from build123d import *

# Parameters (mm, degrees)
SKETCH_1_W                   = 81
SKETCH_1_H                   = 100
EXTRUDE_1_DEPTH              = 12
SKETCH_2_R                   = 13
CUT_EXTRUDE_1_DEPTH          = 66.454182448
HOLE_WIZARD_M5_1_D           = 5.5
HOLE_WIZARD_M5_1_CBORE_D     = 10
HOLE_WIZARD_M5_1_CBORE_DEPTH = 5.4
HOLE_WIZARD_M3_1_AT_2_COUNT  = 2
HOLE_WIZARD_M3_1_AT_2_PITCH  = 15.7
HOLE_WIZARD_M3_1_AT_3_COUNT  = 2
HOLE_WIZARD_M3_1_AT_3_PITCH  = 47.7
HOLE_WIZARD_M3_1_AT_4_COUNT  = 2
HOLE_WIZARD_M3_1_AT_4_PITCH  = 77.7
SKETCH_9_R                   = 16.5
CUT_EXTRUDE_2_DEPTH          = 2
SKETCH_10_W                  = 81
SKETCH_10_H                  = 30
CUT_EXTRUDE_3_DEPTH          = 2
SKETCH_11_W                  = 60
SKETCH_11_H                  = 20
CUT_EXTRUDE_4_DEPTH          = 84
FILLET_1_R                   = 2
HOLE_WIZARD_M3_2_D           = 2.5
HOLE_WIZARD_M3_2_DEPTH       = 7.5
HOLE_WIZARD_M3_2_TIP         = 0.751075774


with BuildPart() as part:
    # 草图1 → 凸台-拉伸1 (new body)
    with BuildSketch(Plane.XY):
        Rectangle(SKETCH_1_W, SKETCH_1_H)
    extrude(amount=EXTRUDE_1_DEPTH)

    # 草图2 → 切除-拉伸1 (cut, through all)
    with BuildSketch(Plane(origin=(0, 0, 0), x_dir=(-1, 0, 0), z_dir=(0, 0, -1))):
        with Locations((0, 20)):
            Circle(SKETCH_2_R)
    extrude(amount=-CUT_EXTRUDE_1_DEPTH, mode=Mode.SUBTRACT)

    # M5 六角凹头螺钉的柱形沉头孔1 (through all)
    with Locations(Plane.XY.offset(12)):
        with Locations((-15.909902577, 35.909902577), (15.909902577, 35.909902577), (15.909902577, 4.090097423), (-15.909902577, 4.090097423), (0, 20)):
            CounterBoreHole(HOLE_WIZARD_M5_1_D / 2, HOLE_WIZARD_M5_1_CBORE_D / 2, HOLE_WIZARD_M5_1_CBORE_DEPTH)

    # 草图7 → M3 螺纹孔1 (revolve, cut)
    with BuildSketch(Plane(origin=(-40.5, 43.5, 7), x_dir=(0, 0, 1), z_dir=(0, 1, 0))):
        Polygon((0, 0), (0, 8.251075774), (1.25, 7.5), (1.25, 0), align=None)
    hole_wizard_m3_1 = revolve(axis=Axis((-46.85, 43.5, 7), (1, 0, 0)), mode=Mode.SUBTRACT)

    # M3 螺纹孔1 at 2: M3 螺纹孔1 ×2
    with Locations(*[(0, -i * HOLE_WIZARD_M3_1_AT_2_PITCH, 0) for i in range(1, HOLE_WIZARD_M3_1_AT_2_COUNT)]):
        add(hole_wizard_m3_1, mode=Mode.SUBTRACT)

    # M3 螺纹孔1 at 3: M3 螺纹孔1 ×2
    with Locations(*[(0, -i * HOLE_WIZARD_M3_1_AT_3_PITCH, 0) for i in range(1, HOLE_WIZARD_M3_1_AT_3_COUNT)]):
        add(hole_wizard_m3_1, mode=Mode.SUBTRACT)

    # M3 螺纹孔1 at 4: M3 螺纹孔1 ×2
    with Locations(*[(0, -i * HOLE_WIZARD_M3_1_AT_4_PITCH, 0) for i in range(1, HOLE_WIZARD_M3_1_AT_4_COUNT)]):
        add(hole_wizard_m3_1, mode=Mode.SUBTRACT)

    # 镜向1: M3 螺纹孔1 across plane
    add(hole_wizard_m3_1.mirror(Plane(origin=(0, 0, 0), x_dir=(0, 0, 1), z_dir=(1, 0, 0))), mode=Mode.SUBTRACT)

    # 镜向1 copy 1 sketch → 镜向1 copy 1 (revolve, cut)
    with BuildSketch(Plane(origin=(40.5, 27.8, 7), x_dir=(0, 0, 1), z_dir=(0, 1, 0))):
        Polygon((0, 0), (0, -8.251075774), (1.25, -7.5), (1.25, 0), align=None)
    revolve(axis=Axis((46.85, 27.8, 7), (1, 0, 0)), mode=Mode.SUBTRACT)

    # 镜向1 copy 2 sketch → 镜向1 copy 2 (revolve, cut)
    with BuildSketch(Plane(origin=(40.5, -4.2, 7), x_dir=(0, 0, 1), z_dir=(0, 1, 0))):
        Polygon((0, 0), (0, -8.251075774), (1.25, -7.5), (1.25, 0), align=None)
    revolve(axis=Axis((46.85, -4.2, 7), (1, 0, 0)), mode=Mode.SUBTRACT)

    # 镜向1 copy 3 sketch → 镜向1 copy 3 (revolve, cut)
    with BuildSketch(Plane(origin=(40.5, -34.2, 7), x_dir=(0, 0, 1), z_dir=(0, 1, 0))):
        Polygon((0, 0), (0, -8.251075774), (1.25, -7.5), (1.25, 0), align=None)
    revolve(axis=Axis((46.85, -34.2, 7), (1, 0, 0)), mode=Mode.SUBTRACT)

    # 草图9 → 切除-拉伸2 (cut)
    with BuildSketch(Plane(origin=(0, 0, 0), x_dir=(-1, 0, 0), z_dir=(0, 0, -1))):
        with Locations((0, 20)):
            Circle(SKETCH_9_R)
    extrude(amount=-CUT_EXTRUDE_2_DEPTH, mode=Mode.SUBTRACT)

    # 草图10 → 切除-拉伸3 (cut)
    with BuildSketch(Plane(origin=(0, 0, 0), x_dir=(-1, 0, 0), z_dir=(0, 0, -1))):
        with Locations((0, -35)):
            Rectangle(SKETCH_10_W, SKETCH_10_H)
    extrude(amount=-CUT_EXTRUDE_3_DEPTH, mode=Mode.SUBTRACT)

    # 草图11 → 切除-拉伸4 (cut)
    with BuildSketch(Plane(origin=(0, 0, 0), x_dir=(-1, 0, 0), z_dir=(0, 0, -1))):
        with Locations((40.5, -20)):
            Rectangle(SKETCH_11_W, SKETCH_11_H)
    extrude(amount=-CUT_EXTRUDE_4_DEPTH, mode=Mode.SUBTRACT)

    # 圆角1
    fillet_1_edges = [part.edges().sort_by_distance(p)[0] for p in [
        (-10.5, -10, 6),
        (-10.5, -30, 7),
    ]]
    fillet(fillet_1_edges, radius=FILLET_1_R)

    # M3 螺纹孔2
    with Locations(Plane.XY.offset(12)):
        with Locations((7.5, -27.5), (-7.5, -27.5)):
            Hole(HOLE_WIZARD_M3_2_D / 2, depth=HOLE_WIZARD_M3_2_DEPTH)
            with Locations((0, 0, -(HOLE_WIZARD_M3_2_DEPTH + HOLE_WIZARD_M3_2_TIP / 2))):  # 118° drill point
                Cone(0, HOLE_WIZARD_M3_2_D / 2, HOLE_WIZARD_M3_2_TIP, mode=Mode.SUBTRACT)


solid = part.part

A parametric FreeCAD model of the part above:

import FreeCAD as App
import Part
import Sketcher
Q = App.Units.Quantity


def edges_at(feature, points):
    """Names of the edges that pass closest to the given points."""
    edges = feature.Shape.Edges
    near = lambda p: min(range(len(edges)), key=lambda i: edges[i].distToShape(Part.Vertex(*p))[0])
    return sorted({f"Edge{near(p) + 1}" for p in points})

doc = App.newDocument("Part")
body = doc.addObject("PartDesign::Body", "Body")

sketch1 = body.newObject("Sketcher::SketchObject", "Sketch")
sketch1.AttachmentSupport = (doc.getObject("XY_Plane"), [""])
sketch1.MapMode = "FlatFace"
sketch1.addGeometry([
    Part.LineSegment(App.Vector(-40, 50, 0), App.Vector(-40, -50, 0)),
    Part.LineSegment(App.Vector(-40, -50, 0), App.Vector(40, -50, 0)),
    Part.LineSegment(App.Vector(40, -50, 0), App.Vector(40, 50, 0)),
    Part.LineSegment(App.Vector(40, 50, 0), App.Vector(-40, 50, 0)),
], False)
sketch1.addConstraint([
    Sketcher.Constraint("Coincident", 0, 2, 1, 1),
    Sketcher.Constraint("Coincident", 1, 2, 2, 1),
    Sketcher.Constraint("Coincident", 2, 2, 3, 1),
    Sketcher.Constraint("Coincident", 3, 2, 0, 1),
    Sketcher.Constraint("Vertical", 0),
    Sketcher.Constraint("Horizontal", 1),
    Sketcher.Constraint("Vertical", 2),
    Sketcher.Constraint("Horizontal", 3),
    Sketcher.Constraint("Symmetric", 0, 2, 2, 2, -1, 1),
    Sketcher.Constraint("DistanceX", 1, 1, 1, 2, 81.0),
    Sketcher.Constraint("DistanceY", 0, 2, 0, 1, 100.0),
])
pad1 = body.newObject("PartDesign::Pad", "Pad")
pad1.Profile = sketch1
pad1.Length = 12

sketch2 = body.newObject("Sketcher::SketchObject", "Sketch001")
sketch2.AttachmentSupport = (doc.getObject("XY_Plane"), [""])
sketch2.MapMode = "FlatFace"
sketch2.addGeometry(Part.Circle(App.Vector(0, 20, 0), App.Vector(0, 0, 1), 13), False)
sketch2.addConstraint([
    Sketcher.Constraint("PointOnObject", 0, 3, -2),
    Sketcher.Constraint("Diameter", 0, 26.0),
    Sketcher.Constraint("DistanceY", -1, 1, 0, 3, 20.0),
])
pocket1 = body.newObject("PartDesign::Pocket", "Pocket")
pocket1.Profile = sketch2
pocket1.Type = "ThroughAll"
pocket1.Reversed = True

sketch3 = body.newObject("Sketcher::SketchObject", "Sketch002")
sketch3.AttachmentSupport = (doc.getObject("XY_Plane"), [""])
sketch3.MapMode = "FlatFace"
sketch3.AttachmentOffset = App.Placement(App.Vector(0, 0, 12), App.Rotation())
sketch3.addGeometry([
    Part.Circle(App.Vector(-15.9, 35.9, 0), App.Vector(0, 0, 1), 2.8),
    Part.Circle(App.Vector(15.9, 35.9, 0), App.Vector(0, 0, 1), 2.8),
    Part.Circle(App.Vector(15.9, 4.1, 0), App.Vector(0, 0, 1), 2.8),
    Part.Circle(App.Vector(-15.9, 4.1, 0), App.Vector(0, 0, 1), 2.8),
    Part.Circle(App.Vector(0, 20, 0), App.Vector(0, 0, 1), 2.8),
], False)
sketch3.addConstraint([
    Sketcher.Constraint("Equal", 0, 1),
    Sketcher.Constraint("Equal", 1, 2),
    Sketcher.Constraint("Equal", 2, 3),
    Sketcher.Constraint("Equal", 3, 4),
    Sketcher.Constraint("Symmetric", 0, 3, 1, 3, -2),
    Sketcher.Constraint("Symmetric", 2, 3, 3, 3, -2),
    Sketcher.Constraint("PointOnObject", 4, 3, -2),
    Sketcher.Constraint("Vertical", 1, 3, 2, 3),
    Sketcher.Constraint("Diameter", 0, 5.5),
    Sketcher.Constraint("DistanceY", -1, 1, 4, 3, 20.0),
    Sketcher.Constraint("DistanceX", 0, 3, -1, 1, 15.909903),
    Sketcher.Constraint("DistanceY", -1, 1, 0, 3, 35.909903),
    Sketcher.Constraint("DistanceY", -1, 1, 2, 3, 4.090097),
])
doc.recompute()
hole = body.newObject("PartDesign::Hole", "Hole")
hole.Profile = sketch3
hole.ThreadType = "None"
hole.Diameter = 5.5
hole.DepthType = "ThroughAll"
hole.HoleCutType = "Counterbore"
hole.HoleCutDiameter = 10
hole.HoleCutDepth = 5.4

sketch4 = body.newObject("Sketcher::SketchObject", "Sketch003")
sketch4.AttachmentSupport = (doc.getObject("XZ_Plane"), [""])
sketch4.MapMode = "FlatFace"
sketch4.AttachmentOffset = App.Placement(App.Vector(0, 0, -43.5), App.Rotation())
sketch4.addGeometry([
    Part.LineSegment(App.Vector(-32.2, 7, 0), App.Vector(-40.5, 7, 0)),
    Part.LineSegment(App.Vector(-40.5, 7, 0), App.Vector(-40.5, 8.2, 0)),
    Part.LineSegment(App.Vector(-40.5, 8.2, 0), App.Vector(-33, 8.2, 0)),
    Part.LineSegment(App.Vector(-33, 8.2, 0), App.Vector(-32.2, 7, 0)),
], False)
sketch4.addGeometry(Part.LineSegment(App.Vector(-40.5, 7, 0), App.Vector(-32.2, 7, 0)), True)
sketch4.addConstraint([
    Sketcher.Constraint("Coincident", 0, 2, 1, 1),
    Sketcher.Constraint("Coincident", 1, 2, 2, 1),
    Sketcher.Constraint("Coincident", 2, 2, 3, 1),
    Sketcher.Constraint("Coincident", 3, 2, 0, 1),
    Sketcher.Constraint("Horizontal", 0),
    Sketcher.Constraint("Vertical", 1),
    Sketcher.Constraint("Horizontal", 2),
    Sketcher.Constraint("Horizontal", 4),
    Sketcher.Constraint("Coincident", 4, 1, 0, 2),
    Sketcher.Constraint("Equal", 0, 4),
    Sketcher.Constraint("Angle", 3, Q("-59 deg")),
    Sketcher.Constraint("DistanceX", 2, 1, 2, 2, 7.5),
    Sketcher.Constraint("DistanceY", -1, 1, 0, 2, 7.0),
    Sketcher.Constraint("DistanceX", 2, 2, -1, 1, 33.0),
    Sketcher.Constraint("DistanceY", 1, 1, 1, 2, 1.25),
])
groove = body.newObject("PartDesign::Groove", "Groove")
groove.Profile = sketch4
groove.ReferenceAxis = (sketch4, ["Axis0"])
groove.Angle = 360
doc.recompute()

linearpattern = body.newObject("PartDesign::LinearPattern", "LinearPattern")
linearpattern.Originals = [groove]
linearpattern.Direction = (doc.getObject("Y_Axis"), [""])
linearpattern.Mode = "offset"
linearpattern.Offset = 15.7
linearpattern.Occurrences = 2
linearpattern.Reversed = True
body.Tip = linearpattern
doc.recompute()

linearpattern2 = body.newObject("PartDesign::LinearPattern", "LinearPattern001")
linearpattern2.Originals = [groove]
linearpattern2.Direction = (doc.getObject("Y_Axis"), [""])
linearpattern2.Mode = "offset"
linearpattern2.Offset = 47.7
linearpattern2.Occurrences = 2
linearpattern2.Reversed = True
body.Tip = linearpattern2
doc.recompute()

linearpattern3 = body.newObject("PartDesign::LinearPattern", "LinearPattern002")
linearpattern3.Originals = [groove]
linearpattern3.Direction = (doc.getObject("Y_Axis"), [""])
linearpattern3.Mode = "offset"
linearpattern3.Offset = 77.7
linearpattern3.Occurrences = 2
linearpattern3.Reversed = True
body.Tip = linearpattern3
doc.recompute()

mirrored = body.newObject("PartDesign::Mirrored", "Mirrored")
mirrored.Originals = [groove]
mirrored.MirrorPlane = (doc.getObject("YZ_Plane"), [""])
body.Tip = mirrored

sketch5 = body.newObject("Sketcher::SketchObject", "Sketch004")
sketch5.AttachmentSupport = (doc.getObject("XZ_Plane"), [""])
sketch5.MapMode = "FlatFace"
sketch5.AttachmentOffset = App.Placement(App.Vector(0, 0, -27.8), App.Rotation())
sketch5.addGeometry([
    Part.LineSegment(App.Vector(40.5, 7, 0), App.Vector(32.2, 7, 0)),
    Part.LineSegment(App.Vector(32.2, 7, 0), App.Vector(33, 8.2, 0)),
    Part.LineSegment(App.Vector(33, 8.2, 0), App.Vector(40.5, 8.2, 0)),
    Part.LineSegment(App.Vector(40.5, 8.2, 0), App.Vector(40.5, 7, 0)),
], False)
sketch5.addGeometry(Part.LineSegment(App.Vector(32.2, 7, 0), App.Vector(40.5, 7, 0)), True)
sketch5.addConstraint([
    Sketcher.Constraint("Coincident", 0, 2, 1, 1),
    Sketcher.Constraint("Coincident", 1, 2, 2, 1),
    Sketcher.Constraint("Coincident", 2, 2, 3, 1),
    Sketcher.Constraint("Coincident", 3, 2, 0, 1),
    Sketcher.Constraint("Horizontal", 0),
    Sketcher.Constraint("Horizontal", 2),
    Sketcher.Constraint("Vertical", 3),
    Sketcher.Constraint("Horizontal", 4),
    Sketcher.Constraint("Coincident", 4, 1, 0, 2),
    Sketcher.Constraint("Vertical", 2, 2, 4, 2),
    Sketcher.Constraint("Angle", 1, Q("59 deg")),
    Sketcher.Constraint("DistanceX", 2, 1, 2, 2, 7.5),
    Sketcher.Constraint("DistanceY", -1, 1, 0, 2, 7.0),
    Sketcher.Constraint("DistanceX", -1, 1, 1, 2, 33.0),
    Sketcher.Constraint("DistanceY", 3, 2, 3, 1, 1.25),
])
groove2 = body.newObject("PartDesign::Groove", "Groove001")
groove2.Profile = sketch5
groove2.ReferenceAxis = (sketch5, ["Axis0"])
groove2.Angle = 360

sketch6 = body.newObject("Sketcher::SketchObject", "Sketch005")
sketch6.AttachmentSupport = (doc.getObject("XZ_Plane"), [""])
sketch6.MapMode = "FlatFace"
sketch6.AttachmentOffset = App.Placement(App.Vector(0, 0, 4.2), App.Rotation())
sketch6.addGeometry([
    Part.LineSegment(App.Vector(40.5, 7, 0), App.Vector(32.2, 7, 0)),
    Part.LineSegment(App.Vector(32.2, 7, 0), App.Vector(33, 8.2, 0)),
    Part.LineSegment(App.Vector(33, 8.2, 0), App.Vector(40.5, 8.2, 0)),
    Part.LineSegment(App.Vector(40.5, 8.2, 0), App.Vector(40.5, 7, 0)),
], False)
sketch6.addGeometry(Part.LineSegment(App.Vector(32.2, 7, 0), App.Vector(40.5, 7, 0)), True)
sketch6.addConstraint([
    Sketcher.Constraint("Coincident", 0, 2, 1, 1),
    Sketcher.Constraint("Coincident", 1, 2, 2, 1),
    Sketcher.Constraint("Coincident", 2, 2, 3, 1),
    Sketcher.Constraint("Coincident", 3, 2, 0, 1),
    Sketcher.Constraint("Horizontal", 0),
    Sketcher.Constraint("Horizontal", 2),
    Sketcher.Constraint("Vertical", 3),
    Sketcher.Constraint("Horizontal", 4),
    Sketcher.Constraint("Coincident", 4, 1, 0, 2),
    Sketcher.Constraint("Vertical", 2, 2, 4, 2),
    Sketcher.Constraint("Angle", 1, Q("59 deg")),
    Sketcher.Constraint("DistanceX", 2, 1, 2, 2, 7.5),
    Sketcher.Constraint("DistanceY", -1, 1, 0, 2, 7.0),
    Sketcher.Constraint("DistanceX", -1, 1, 1, 2, 33.0),
    Sketcher.Constraint("DistanceY", 3, 2, 3, 1, 1.25),
])
groove3 = body.newObject("PartDesign::Groove", "Groove002")
groove3.Profile = sketch6
groove3.ReferenceAxis = (sketch6, ["Axis0"])
groove3.Angle = 360

sketch7 = body.newObject("Sketcher::SketchObject", "Sketch006")
sketch7.AttachmentSupport = (doc.getObject("XZ_Plane"), [""])
sketch7.MapMode = "FlatFace"
sketch7.AttachmentOffset = App.Placement(App.Vector(0, 0, 34.2), App.Rotation())
sketch7.addGeometry([
    Part.LineSegment(App.Vector(40.5, 7, 0), App.Vector(32.2, 7, 0)),
    Part.LineSegment(App.Vector(32.2, 7, 0), App.Vector(33, 8.2, 0)),
    Part.LineSegment(App.Vector(33, 8.2, 0), App.Vector(40.5, 8.2, 0)),
    Part.LineSegment(App.Vector(40.5, 8.2, 0), App.Vector(40.5, 7, 0)),
], False)
sketch7.addGeometry(Part.LineSegment(App.Vector(32.2, 7, 0), App.Vector(40.5, 7, 0)), True)
sketch7.addConstraint([
    Sketcher.Constraint("Coincident", 0, 2, 1, 1),
    Sketcher.Constraint("Coincident", 1, 2, 2, 1),
    Sketcher.Constraint("Coincident", 2, 2, 3, 1),
    Sketcher.Constraint("Coincident", 3, 2, 0, 1),
    Sketcher.Constraint("Horizontal", 0),
    Sketcher.Constraint("Horizontal", 2),
    Sketcher.Constraint("Vertical", 3),
    Sketcher.Constraint("Horizontal", 4),
    Sketcher.Constraint("Coincident", 4, 1, 0, 2),
    Sketcher.Constraint("Vertical", 2, 2, 4, 2),
    Sketcher.Constraint("Angle", 1, Q("59 deg")),
    Sketcher.Constraint("DistanceX", 2, 1, 2, 2, 7.5),
    Sketcher.Constraint("DistanceY", -1, 1, 0, 2, 7.0),
    Sketcher.Constraint("DistanceX", -1, 1, 1, 2, 33.0),
    Sketcher.Constraint("DistanceY", 3, 2, 3, 1, 1.25),
])
groove4 = body.newObject("PartDesign::Groove", "Groove003")
groove4.Profile = sketch7
groove4.ReferenceAxis = (sketch7, ["Axis0"])
groove4.Angle = 360

sketch8 = body.newObject("Sketcher::SketchObject", "Sketch007")
sketch8.AttachmentSupport = (doc.getObject("XY_Plane"), [""])
sketch8.MapMode = "FlatFace"
sketch8.addGeometry(Part.Circle(App.Vector(0, 20, 0), App.Vector(0, 0, 1), 16), False)
sketch8.addConstraint([
    Sketcher.Constraint("PointOnObject", 0, 3, -2),
    Sketcher.Constraint("Diameter", 0, 33.0),
    Sketcher.Constraint("DistanceY", -1, 1, 0, 3, 20.0),
])
pocket2 = body.newObject("PartDesign::Pocket", "Pocket001")
pocket2.Profile = sketch8
pocket2.Length = 2
pocket2.Reversed = True

sketch9 = body.newObject("Sketcher::SketchObject", "Sketch008")
sketch9.AttachmentSupport = (doc.getObject("XY_Plane"), [""])
sketch9.MapMode = "FlatFace"
sketch9.addGeometry([
    Part.LineSegment(App.Vector(40, -20, 0), App.Vector(40, -50, 0)),
    Part.LineSegment(App.Vector(40, -50, 0), App.Vector(-40, -50, 0)),
    Part.LineSegment(App.Vector(-40, -50, 0), App.Vector(-40, -20, 0)),
    Part.LineSegment(App.Vector(-40, -20, 0), App.Vector(40, -20, 0)),
], False)
sketch9.addConstraint([
    Sketcher.Constraint("Coincident", 0, 2, 1, 1),
    Sketcher.Constraint("Coincident", 1, 2, 2, 1),
    Sketcher.Constraint("Coincident", 2, 2, 3, 1),
    Sketcher.Constraint("Coincident", 3, 2, 0, 1),
    Sketcher.Constraint("Vertical", 0),
    Sketcher.Constraint("Horizontal", 1),
    Sketcher.Constraint("Vertical", 2),
    Sketcher.Constraint("Horizontal", 3),
    Sketcher.Constraint("DistanceX", 1, 2, 1, 1, 81.0),
    Sketcher.Constraint("DistanceY", 0, 2, 0, 1, 30.0),
    Sketcher.Constraint("DistanceY", 0, 2, -1, 1, 50.0),
    Sketcher.Constraint("DistanceX", -1, 1, 0, 2, 40.5),
])
pocket3 = body.newObject("PartDesign::Pocket", "Pocket002")
pocket3.Profile = sketch9
pocket3.Length = 2
pocket3.Reversed = True

sketch10 = body.newObject("Sketcher::SketchObject", "Sketch009")
sketch10.AttachmentSupport = (doc.getObject("XY_Plane"), [""])
sketch10.MapMode = "FlatFace"
sketch10.addGeometry([
    Part.LineSegment(App.Vector(-10, -10, 0), App.Vector(-10, -30, 0)),
    Part.LineSegment(App.Vector(-10, -30, 0), App.Vector(-70, -30, 0)),
    Part.LineSegment(App.Vector(-70, -30, 0), App.Vector(-70, -10, 0)),
    Part.LineSegment(App.Vector(-70, -10, 0), App.Vector(-10, -10, 0)),
], False)
sketch10.addConstraint([
    Sketcher.Constraint("Coincident", 0, 2, 1, 1),
    Sketcher.Constraint("Coincident", 1, 2, 2, 1),
    Sketcher.Constraint("Coincident", 2, 2, 3, 1),
    Sketcher.Constraint("Coincident", 3, 2, 0, 1),
    Sketcher.Constraint("Vertical", 0),
    Sketcher.Constraint("Horizontal", 1),
    Sketcher.Constraint("Vertical", 2),
    Sketcher.Constraint("Horizontal", 3),
    Sketcher.Constraint("DistanceX", 1, 2, 1, 1, 60.0),
    Sketcher.Constraint("DistanceY", 0, 2, 0, 1, 20.0),
    Sketcher.Constraint("DistanceY", 0, 2, -1, 1, 30.0),
    Sketcher.Constraint("DistanceX", 0, 2, -1, 1, 10.5),
])
pocket4 = body.newObject("PartDesign::Pocket", "Pocket003")
pocket4.Profile = sketch10
pocket4.Length = 84
pocket4.Reversed = True
doc.recompute()

fillet = body.newObject("PartDesign::Fillet", "Fillet")
fillet.Base = (pocket4, edges_at(pocket4, [(-10.5, -10, 6), (-10.5, -30, 7)]))
fillet.Radius = 2

sketch11 = body.newObject("Sketcher::SketchObject", "Sketch010")
sketch11.AttachmentSupport = (doc.getObject("XY_Plane"), [""])
sketch11.MapMode = "FlatFace"
sketch11.AttachmentOffset = App.Placement(App.Vector(0, 0, 12), App.Rotation())
sketch11.addGeometry([
    Part.Circle(App.Vector(7.5, -27.5, 0), App.Vector(0, 0, 1), 1.2),
    Part.Circle(App.Vector(-7.5, -27.5, 0), App.Vector(0, 0, 1), 1.2),
], False)
sketch11.addConstraint([
    Sketcher.Constraint("Equal", 0, 1),
    Sketcher.Constraint("Symmetric", 0, 3, 1, 3, -2),
    Sketcher.Constraint("Diameter", 0, 2.5),
    Sketcher.Constraint("DistanceX", 1, 3, 0, 3, 15.0),
    Sketcher.Constraint("DistanceY", 0, 3, -1, 1, 27.5),
])
doc.recompute()
hole2 = body.newObject("PartDesign::Hole", "Hole001")
hole2.Profile = sketch11
hole2.ThreadType = "None"
hole2.Diameter = 2.5
hole2.DepthType = "Dimension"
hole2.Depth = 7.5
hole2.DrillPoint = "Angled"
hole2.DrillPointAngle = 118

doc.recompute()
